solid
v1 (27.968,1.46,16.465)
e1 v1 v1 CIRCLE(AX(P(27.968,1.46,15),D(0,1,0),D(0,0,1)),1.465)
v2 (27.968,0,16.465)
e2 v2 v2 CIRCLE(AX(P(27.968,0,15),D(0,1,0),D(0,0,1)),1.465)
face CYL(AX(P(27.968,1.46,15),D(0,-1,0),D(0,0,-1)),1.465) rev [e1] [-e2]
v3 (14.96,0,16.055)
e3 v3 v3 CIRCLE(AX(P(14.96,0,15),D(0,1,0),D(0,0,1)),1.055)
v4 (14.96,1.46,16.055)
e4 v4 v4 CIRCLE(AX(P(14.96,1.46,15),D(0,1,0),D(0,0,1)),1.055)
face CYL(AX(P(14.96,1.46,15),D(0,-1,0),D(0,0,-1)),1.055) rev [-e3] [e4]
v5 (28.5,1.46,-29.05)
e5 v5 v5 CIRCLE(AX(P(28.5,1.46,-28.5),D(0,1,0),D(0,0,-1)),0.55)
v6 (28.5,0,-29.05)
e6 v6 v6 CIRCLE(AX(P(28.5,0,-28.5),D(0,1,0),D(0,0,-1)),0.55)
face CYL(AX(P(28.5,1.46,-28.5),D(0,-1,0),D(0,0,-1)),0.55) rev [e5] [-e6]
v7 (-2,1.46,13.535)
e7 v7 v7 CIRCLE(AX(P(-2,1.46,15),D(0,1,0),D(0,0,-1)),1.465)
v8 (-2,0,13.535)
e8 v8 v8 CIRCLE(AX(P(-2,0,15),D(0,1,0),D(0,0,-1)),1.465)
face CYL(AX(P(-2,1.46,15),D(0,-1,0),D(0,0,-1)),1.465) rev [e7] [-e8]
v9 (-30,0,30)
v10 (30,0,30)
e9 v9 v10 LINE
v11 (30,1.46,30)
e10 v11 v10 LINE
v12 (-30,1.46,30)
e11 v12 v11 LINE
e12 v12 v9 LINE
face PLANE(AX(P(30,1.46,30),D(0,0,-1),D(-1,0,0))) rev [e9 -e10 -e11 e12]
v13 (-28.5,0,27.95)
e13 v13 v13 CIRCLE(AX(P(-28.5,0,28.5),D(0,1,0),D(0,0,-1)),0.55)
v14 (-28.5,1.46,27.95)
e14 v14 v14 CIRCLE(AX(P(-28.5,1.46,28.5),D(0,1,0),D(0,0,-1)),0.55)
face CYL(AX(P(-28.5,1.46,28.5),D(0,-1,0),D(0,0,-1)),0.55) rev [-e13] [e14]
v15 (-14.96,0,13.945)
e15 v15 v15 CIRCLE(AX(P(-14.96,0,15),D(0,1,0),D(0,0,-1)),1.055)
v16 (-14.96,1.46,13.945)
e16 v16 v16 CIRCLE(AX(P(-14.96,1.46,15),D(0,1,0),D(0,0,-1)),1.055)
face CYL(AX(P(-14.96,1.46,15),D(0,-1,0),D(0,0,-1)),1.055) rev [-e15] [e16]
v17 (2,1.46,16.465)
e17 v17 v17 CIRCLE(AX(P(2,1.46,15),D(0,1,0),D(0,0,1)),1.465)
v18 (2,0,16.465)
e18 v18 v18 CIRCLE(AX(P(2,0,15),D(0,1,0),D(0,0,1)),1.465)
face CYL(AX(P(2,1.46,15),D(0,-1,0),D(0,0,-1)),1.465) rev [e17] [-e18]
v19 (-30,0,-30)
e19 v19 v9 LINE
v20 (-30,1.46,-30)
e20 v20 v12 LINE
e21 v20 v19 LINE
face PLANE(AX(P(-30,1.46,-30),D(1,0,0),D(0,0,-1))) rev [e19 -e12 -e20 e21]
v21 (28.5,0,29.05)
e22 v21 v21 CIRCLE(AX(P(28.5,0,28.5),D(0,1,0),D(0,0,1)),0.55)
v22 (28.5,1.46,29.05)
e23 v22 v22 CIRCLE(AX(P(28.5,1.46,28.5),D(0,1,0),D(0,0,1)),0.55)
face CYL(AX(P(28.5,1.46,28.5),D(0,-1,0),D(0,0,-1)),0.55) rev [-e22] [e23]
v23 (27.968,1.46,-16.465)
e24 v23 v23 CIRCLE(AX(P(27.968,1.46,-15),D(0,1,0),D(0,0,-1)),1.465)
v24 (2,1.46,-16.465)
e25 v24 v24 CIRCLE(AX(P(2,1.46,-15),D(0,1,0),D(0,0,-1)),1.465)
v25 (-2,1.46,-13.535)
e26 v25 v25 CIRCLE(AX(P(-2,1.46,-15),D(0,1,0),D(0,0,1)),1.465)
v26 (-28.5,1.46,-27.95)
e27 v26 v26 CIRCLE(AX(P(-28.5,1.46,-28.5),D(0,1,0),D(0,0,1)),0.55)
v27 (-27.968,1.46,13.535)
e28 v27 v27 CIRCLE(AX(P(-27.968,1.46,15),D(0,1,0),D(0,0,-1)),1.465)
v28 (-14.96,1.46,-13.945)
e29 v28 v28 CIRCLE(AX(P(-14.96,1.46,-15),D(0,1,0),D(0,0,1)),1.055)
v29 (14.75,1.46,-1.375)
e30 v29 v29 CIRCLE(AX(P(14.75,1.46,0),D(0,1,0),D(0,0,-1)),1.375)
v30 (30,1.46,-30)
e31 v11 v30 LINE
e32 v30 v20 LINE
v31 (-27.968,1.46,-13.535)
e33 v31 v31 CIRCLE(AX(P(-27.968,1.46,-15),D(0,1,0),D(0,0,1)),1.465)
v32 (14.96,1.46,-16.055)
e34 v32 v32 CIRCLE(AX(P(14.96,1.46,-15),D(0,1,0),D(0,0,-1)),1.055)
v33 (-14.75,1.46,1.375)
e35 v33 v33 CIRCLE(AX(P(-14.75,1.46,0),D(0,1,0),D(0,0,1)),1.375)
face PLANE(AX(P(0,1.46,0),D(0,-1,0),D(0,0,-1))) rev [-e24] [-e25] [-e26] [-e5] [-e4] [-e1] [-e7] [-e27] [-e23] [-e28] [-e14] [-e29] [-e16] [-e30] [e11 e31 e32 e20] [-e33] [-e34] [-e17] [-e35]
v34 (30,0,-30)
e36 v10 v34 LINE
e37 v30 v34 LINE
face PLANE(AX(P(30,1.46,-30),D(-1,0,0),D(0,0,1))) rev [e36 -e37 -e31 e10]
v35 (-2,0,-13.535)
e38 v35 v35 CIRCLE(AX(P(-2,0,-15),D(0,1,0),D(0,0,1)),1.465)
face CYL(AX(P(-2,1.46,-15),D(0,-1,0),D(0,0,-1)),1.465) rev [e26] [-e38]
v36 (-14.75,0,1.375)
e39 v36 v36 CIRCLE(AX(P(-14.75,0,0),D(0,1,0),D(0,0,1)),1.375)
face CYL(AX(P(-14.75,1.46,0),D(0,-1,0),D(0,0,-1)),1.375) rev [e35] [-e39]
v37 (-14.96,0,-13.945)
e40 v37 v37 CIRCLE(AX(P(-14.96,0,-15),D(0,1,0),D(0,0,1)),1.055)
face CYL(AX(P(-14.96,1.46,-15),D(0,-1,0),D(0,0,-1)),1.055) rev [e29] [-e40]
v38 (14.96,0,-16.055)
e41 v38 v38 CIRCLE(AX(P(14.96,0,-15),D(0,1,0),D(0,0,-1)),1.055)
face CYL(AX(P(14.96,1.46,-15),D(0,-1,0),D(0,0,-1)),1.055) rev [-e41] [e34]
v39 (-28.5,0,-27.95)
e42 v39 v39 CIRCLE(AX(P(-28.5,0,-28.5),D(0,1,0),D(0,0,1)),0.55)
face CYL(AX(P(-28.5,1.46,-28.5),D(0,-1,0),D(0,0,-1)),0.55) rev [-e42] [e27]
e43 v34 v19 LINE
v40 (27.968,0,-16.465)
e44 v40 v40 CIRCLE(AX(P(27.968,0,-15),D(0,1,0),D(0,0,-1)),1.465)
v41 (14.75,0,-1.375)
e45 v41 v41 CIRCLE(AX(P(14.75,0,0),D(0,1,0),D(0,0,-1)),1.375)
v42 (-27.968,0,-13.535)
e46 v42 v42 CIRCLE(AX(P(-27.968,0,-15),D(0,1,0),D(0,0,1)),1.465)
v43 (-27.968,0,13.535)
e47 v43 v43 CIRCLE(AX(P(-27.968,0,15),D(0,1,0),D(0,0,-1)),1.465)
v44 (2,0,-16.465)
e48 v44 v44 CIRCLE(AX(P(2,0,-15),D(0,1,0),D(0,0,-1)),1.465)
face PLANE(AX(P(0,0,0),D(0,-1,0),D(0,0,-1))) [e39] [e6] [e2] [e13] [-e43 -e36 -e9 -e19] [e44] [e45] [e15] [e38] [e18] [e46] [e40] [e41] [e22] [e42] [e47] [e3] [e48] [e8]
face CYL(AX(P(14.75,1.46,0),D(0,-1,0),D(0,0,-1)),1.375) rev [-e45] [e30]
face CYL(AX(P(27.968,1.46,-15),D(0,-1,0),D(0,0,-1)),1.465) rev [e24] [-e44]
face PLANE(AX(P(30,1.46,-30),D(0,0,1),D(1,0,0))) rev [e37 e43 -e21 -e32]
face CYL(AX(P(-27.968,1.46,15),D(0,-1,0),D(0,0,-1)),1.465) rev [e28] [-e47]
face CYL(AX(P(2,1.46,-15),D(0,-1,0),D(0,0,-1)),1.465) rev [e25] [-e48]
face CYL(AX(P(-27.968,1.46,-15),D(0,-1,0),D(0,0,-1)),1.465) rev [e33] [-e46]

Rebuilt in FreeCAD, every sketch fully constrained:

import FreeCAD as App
import Part
import Sketcher

V = App.Vector
Q = App.Units.Quantity


def add_polygon(sketch, points):
    """Adds a closed chain of lines whose ends are joined by coincident constraints."""
    first, n = sketch.GeometryCount, len(points)
    for a, b in zip(points, points[1:] + points[:1]):
        sketch.addGeometry(Part.LineSegment(App.Vector(*a, 0), App.Vector(*b, 0)), False)
    for i in range(n):
        sketch.addConstraint(Sketcher.Constraint("Coincident", first + i, 2, first + (i + 1) % n, 1))

doc = App.newDocument("Part")
params = doc.addObject("Spreadsheet::Sheet", "Params")
for row, (alias, value) in enumerate([
    ("sketch1_diameter", "1.1 mm"),
    ("sketch1_diameter2", "2.93 mm"),
    ("sketch1_diameter3", "2.11 mm"),
    ("sketch1_diameter4", "2.75 mm"),
    ("sketch1_width", "60 mm"),
    ("pad1_length", "1.46 mm"),
], start=1):
    params.set(f"A{row}", alias)
    params.set(f"B{row}", "=" + value)
    params.setAlias(f"B{row}", alias)

body = doc.addObject("PartDesign::Body", "Body")

sketch1 = body.newObject("Sketcher::SketchObject", "Sketch")
sketch1.AttachmentSupport = (doc.getObject("XZ_Plane"), [""])
sketch1.MapMode = "FlatFace"
add_polygon(sketch1, [(-30, -30), (-30, 30), (30, 30), (30, -30)])
sketch1.addGeometry(Part.Circle(V(-28.5, 28.5, 0), V(0, 0, 1), 0.55), False)
sketch1.addGeometry(Part.Circle(V(-27.968, 15, 0), V(0, 0, 1), 1.465), False)
sketch1.addGeometry(Part.Circle(V(-14.96, 15, 0), V(0, 0, 1), 1.055), False)
sketch1.addGeometry(Part.Circle(V(-2, 15, 0), V(0, 0, 1), 1.465), False)
sketch1.addGeometry(Part.Circle(V(-14.75, 0, 0), V(0, 0, 1), 1.375), False)
sketch1.addGeometry(Part.Circle(V(2, 15, 0), V(0, 0, 1), 1.465), False)
sketch1.addGeometry(Part.Circle(V(28.5, 28.5, 0), V(0, 0, 1), 0.55), False)
sketch1.addGeometry(Part.Circle(V(14.96, 15, 0), V(0, 0, 1), 1.055), False)
sketch1.addGeometry(Part.Circle(V(27.968, 15, 0), V(0, 0, 1), 1.465), False)
sketch1.addGeometry(Part.Circle(V(14.75, 0, 0), V(0, 0, 1), 1.375), False)
sketch1.addGeometry(Part.Circle(V(-27.968, -15, 0), V(0, 0, 1), 1.465), False)
sketch1.addGeometry(Part.Circle(V(-14.96, -15, 0), V(0, 0, 1), 1.055), False)
sketch1.addGeometry(Part.Circle(V(-28.5, -28.5, 0), V(0, 0, 1), 0.55), False)
sketch1.addGeometry(Part.Circle(V(-2, -15, 0), V(0, 0, 1), 1.465), False)
sketch1.addGeometry(Part.Circle(V(2, -15, 0), V(0, 0, 1), 1.465), False)
sketch1.addGeometry(Part.Circle(V(14.96, -15, 0), V(0, 0, 1), 1.055), False)
sketch1.addGeometry(Part.Circle(V(27.968, -15, 0), V(0, 0, 1), 1.465), False)
sketch1.addGeometry(Part.Circle(V(28.5, -28.5, 0), V(0, 0, 1), 0.55), False)
sketch1.addConstraint(Sketcher.Constraint("Vertical", 0))
sketch1.addConstraint(Sketcher.Constraint("Horizontal", 1))
sketch1.addConstraint(Sketcher.Constraint("Vertical", 2))
sketch1.addConstraint(Sketcher.Constraint("Horizontal", 3))
sketch1.addConstraint(Sketcher.Constraint("Equal", 5, 7))
sketch1.addConstraint(Sketcher.Constraint("Equal", 7, 9))
sketch1.addConstraint(Sketcher.Constraint("Equal", 4, 10))
sketch1.addConstraint(Sketcher.Constraint("Equal", 6, 11))
sketch1.addConstraint(Sketcher.Constraint("Equal", 9, 12))
sketch1.addConstraint(Sketcher.Constraint("Equal", 8, 13))
sketch1.addConstraint(Sketcher.Constraint("Equal", 12, 14))
sketch1.addConstraint(Sketcher.Constraint("Equal", 11, 15))
sketch1.addConstraint(Sketcher.Constraint("Equal", 10, 16))
sketch1.addConstraint(Sketcher.Constraint("Equal", 14, 17))
sketch1.addConstraint(Sketcher.Constraint("Equal", 17, 18))
sketch1.addConstraint(Sketcher.Constraint("Equal", 15, 19))
sketch1.addConstraint(Sketcher.Constraint("Equal", 18, 20))
sketch1.addConstraint(Sketcher.Constraint("Equal", 16, 21))
sketch1.addConstraint(Sketcher.Constraint("Symmetric", 8, 3, 13, 3, -1, 1))
sketch1.addConstraint(Sketcher.Constraint("Symmetric", 12, 3, 14, 3, -1, 1))
sketch1.addConstraint(Sketcher.Constraint("Symmetric", 11, 3, 15, 3, -1, 1))
sketch1.addConstraint(Sketcher.Constraint("Symmetric", 10, 3, 16, 3, -1, 1))
sketch1.addConstraint(Sketcher.Constraint("Symmetric", 9, 3, 17, 3, -1, 1))
sketch1.addConstraint(Sketcher.Constraint("Symmetric", 7, 3, 18, 3, -1, 1))
sketch1.addConstraint(Sketcher.Constraint("Symmetric", 6, 3, 19, 3, -1, 1))
sketch1.addConstraint(Sketcher.Constraint("Symmetric", 5, 3, 20, 3, -1, 1))
sketch1.addConstraint(Sketcher.Constraint("Symmetric", 4, 3, 21, 3, -1, 1))
sketch1.addConstraint(Sketcher.Constraint("Symmetric", 0, 2, 2, 2, -1, 1))
sketch1.addConstraint(Sketcher.Constraint("Symmetric", 7, 3, 9, 3, -2))
sketch1.addConstraint(Sketcher.Constraint("Symmetric", 4, 3, 10, 3, -2))
sketch1.addConstraint(Sketcher.Constraint("Symmetric", 6, 3, 11, 3, -2))
sketch1.addConstraint(Sketcher.Constraint("Symmetric", 5, 3, 12, 3, -2))
sketch1.addConstraint(Sketcher.Constraint("PointOnObject", 8, 3, -1))
sketch1.addConstraint(Sketcher.Constraint("Horizontal", 5, 3, 6, 3))
sketch1.addConstraint(Sketcher.Constraint("Horizontal", 6, 3, 7, 3))
sketch1.addConstraint(Sketcher.Constraint("Equal", 3, 0))
sketch1.addConstraint(Sketcher.Constraint("Diameter", 4, Q("1.1 mm")))
sketch1.addConstraint(Sketcher.Constraint("Diameter", 5, Q("2.93 mm")))
sketch1.addConstraint(Sketcher.Constraint("Diameter", 6, Q("2.11 mm")))
sketch1.addConstraint(Sketcher.Constraint("Diameter", 8, Q("2.75 mm")))
sketch1.addConstraint(Sketcher.Constraint("DistanceX", 1, 1, 1, 2, Q("60 mm")))
sketch1.addConstraint(Sketcher.Constraint("DistanceY", -1, 1, 5, 3, Q("15 mm")))
sketch1.addConstraint(Sketcher.Constraint("DistanceX", 7, 3, -1, 1, Q("2 mm")))
sketch1.addConstraint(Sketcher.Constraint("DistanceX", 4, 3, 10, 3, Q("57 mm")))
sketch1.addConstraint(Sketcher.Constraint("DistanceY", -1, 1, 4, 3, Q("28.5 mm")))
sketch1.addConstraint(Sketcher.Constraint("DistanceX", 8, 3, 13, 3, Q("29.5 mm")))
sketch1.addConstraint(Sketcher.Constraint("DistanceX", 6, 3, -1, 1, Q("14.96 mm")))
sketch1.addConstraint(Sketcher.Constraint("DistanceX", 5, 3, -1, 1, Q("27.968 mm")))
sketch1.setExpression("Constraints[40]", "Params.sketch1_diameter")
sketch1.setExpression("Constraints[41]", "Params.sketch1_diameter2")
sketch1.setExpression("Constraints[42]", "Params.sketch1_diameter3")
sketch1.setExpression("Constraints[43]", "Params.sketch1_diameter4")
sketch1.setExpression("Constraints[44]", "Params.sketch1_width")
pad1 = body.newObject("PartDesign::Pad", "Pad")
pad1.Profile = sketch1
pad1.setExpression("Length", "Params.pad1_length")
pad1.Reversed = True

doc.recompute()
